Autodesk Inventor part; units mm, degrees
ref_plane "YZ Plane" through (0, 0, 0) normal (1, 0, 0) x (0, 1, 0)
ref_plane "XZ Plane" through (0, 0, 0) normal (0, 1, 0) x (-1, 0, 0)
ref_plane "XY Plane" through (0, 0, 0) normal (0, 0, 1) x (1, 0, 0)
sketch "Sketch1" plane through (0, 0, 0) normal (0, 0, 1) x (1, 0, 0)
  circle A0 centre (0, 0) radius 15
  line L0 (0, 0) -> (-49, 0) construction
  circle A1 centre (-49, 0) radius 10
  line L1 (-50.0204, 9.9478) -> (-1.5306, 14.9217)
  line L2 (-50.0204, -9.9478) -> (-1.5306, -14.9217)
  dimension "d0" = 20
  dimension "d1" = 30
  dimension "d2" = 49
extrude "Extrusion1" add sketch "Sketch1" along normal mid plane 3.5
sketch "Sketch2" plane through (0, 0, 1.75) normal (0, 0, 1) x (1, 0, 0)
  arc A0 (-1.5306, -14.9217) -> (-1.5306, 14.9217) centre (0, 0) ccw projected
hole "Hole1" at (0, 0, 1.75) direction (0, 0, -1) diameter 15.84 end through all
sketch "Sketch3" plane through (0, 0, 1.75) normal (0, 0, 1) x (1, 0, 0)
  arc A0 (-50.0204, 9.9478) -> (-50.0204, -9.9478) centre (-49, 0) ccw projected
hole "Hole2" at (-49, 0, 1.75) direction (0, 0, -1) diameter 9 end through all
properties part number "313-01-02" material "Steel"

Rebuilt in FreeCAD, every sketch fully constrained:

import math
import FreeCAD as App
import Part
import Sketcher

doc = App.newDocument("Part")
body = doc.addObject("PartDesign::Body", "Body")

# Sketch on XY plane
sketch1 = doc.addObject("Sketcher::SketchObject", "Sketch")
body.addObject(sketch1)
sketch1.AttachmentSupport = (doc.XY_Plane, [""])
sketch1.MapMode = "FlatFace"
sketch1.addGeometry([
    Part.ArcOfCircle(Part.Circle(App.Vector(0, 0, 0), App.Vector(0, 0, 1), 15), math.radians(-96), math.radians(96)),
    Part.LineSegment(App.Vector(-2, 15, 0), App.Vector(-50, 10, 0)),
    Part.ArcOfCircle(Part.Circle(App.Vector(-49, 0, 0), App.Vector(0, 0, 1), 10), math.radians(96), math.radians(264)),
    Part.LineSegment(App.Vector(-50, -10, 0), App.Vector(-2, -15, 0)),
], False)
sketch1.addConstraint([
    Sketcher.Constraint("Tangent", 0, 2, 1, 1),
    Sketcher.Constraint("Tangent", 1, 2, 2, 1),
    Sketcher.Constraint("Tangent", 2, 2, 3, 1),
    Sketcher.Constraint("Tangent", 3, 2, 0, 1),
    Sketcher.Constraint("Coincident", 0, 3, -1, 1),
    Sketcher.Constraint("PointOnObject", 2, 3, -1),
    Sketcher.Constraint("Radius", 0, 15.0),
    Sketcher.Constraint("Radius", 2, 10.0),
    Sketcher.Constraint("DistanceX", 2, 3, -1, 1, 49.0),
])
pad1 = doc.addObject("PartDesign::Pad", "Pad")
body.addObject(pad1)
pad1.Profile = sketch1
pad1.Length = 3.5
pad1.Midplane = True

# Sketch on XY plane
sketch2 = doc.addObject("Sketcher::SketchObject", "Sketch001")
body.addObject(sketch2)
sketch2.AttachmentSupport = (doc.XY_Plane, [""])
sketch2.MapMode = "FlatFace"
sketch2.AttachmentOffset = App.Placement(App.Vector(0, 0, 1.75), App.Rotation())
sketch2.addGeometry(Part.Circle(App.Vector(0, 0, 0), App.Vector(0, 0, 1), 8), False)
sketch2.addConstraint([
    Sketcher.Constraint("Coincident", 0, 3, -1, 1),
    Sketcher.Constraint("Diameter", 0, 15.84),
])
doc.recompute()
hole = doc.addObject("PartDesign::Hole", "Hole")
body.addObject(hole)
hole.Profile = sketch2
hole.ThreadType = "None"
hole.Diameter = 15.84
hole.DepthType = "ThroughAll"

# Sketch on XY plane
sketch3 = doc.addObject("Sketcher::SketchObject", "Sketch002")
body.addObject(sketch3)
sketch3.AttachmentSupport = (doc.XY_Plane, [""])
sketch3.MapMode = "FlatFace"
sketch3.AttachmentOffset = App.Placement(App.Vector(0, 0, 1.75), App.Rotation())
sketch3.addGeometry(Part.Circle(App.Vector(-49, 0, 0), App.Vector(0, 0, 1), 4.5), False)
sketch3.addConstraint([
    Sketcher.Constraint("PointOnObject", 0, 3, -1),
    Sketcher.Constraint("Diameter", 0, 9.0),
    Sketcher.Constraint("DistanceX", 0, 3, -1, 1, 49.0),
])
doc.recompute()
hole2 = doc.addObject("PartDesign::Hole", "Hole001")
body.addObject(hole2)
hole2.Profile = sketch3
hole2.ThreadType = "None"
hole2.Diameter = 9
hole2.DepthType = "ThroughAll"

doc.recompute()
